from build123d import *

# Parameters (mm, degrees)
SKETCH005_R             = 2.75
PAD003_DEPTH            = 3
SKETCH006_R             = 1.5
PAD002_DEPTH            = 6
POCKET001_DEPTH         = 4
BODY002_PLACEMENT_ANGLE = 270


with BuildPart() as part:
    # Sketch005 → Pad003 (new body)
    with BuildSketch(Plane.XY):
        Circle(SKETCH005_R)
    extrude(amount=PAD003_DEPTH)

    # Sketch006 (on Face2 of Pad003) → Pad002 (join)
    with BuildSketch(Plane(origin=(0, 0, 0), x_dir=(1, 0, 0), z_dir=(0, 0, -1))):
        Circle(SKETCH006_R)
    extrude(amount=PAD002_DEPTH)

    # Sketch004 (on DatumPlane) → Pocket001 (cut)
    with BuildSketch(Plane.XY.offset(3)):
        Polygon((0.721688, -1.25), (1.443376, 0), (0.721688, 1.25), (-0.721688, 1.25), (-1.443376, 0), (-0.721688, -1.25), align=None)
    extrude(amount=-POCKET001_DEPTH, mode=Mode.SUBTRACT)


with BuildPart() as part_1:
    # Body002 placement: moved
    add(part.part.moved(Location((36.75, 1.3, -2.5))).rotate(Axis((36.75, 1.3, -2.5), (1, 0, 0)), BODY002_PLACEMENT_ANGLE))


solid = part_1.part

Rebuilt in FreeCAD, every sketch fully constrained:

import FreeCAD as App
import Part
import Sketcher
from FreeCAD import Vector
Q = App.Units.Quantity

doc = App.newDocument("Part")
params = doc.addObject("Spreadsheet::Sheet", "Params")
for row, (alias, value) in enumerate([
    ("sketch1_diameter", "5.5 mm"),
    ("pad1_length", "3 mm"),
    ("sketch2_diameter", "3 mm"),
    ("pad2_length", "6 mm"),
    ("pocket1_length", "4 mm"),
], start=1):
    params.set(f"A{row}", alias)
    params.set(f"B{row}", "=" + value)
    params.setAlias(f"B{row}", alias)

body = doc.addObject("PartDesign::Body", "Body")

# Sketch on XY plane
sketch1 = body.newObject("Sketcher::SketchObject", "Sketch")
sketch1.AttachmentSupport = (doc.getObject("XY_Plane"), [""])
sketch1.MapMode = "FlatFace"
sketch1.addGeometry(Part.Circle(Vector(0, 0, 0), Vector(0, 0, 1), 2.8), False)
sketch1.addConstraint([
    Sketcher.Constraint("Coincident", 0, 3, -1, 1),
    Sketcher.Constraint("Diameter", 0, Q("5.5 mm")),
])
sketch1.setExpression("Constraints[1]", "Params.sketch1_diameter")
pad1 = body.newObject("PartDesign::Pad", "Pad")
pad1.Profile = sketch1
pad1.setExpression("Length", "Params.pad1_length")

# Sketch on XY plane
sketch2 = body.newObject("Sketcher::SketchObject", "Sketch001")
sketch2.AttachmentSupport = (doc.getObject("XY_Plane"), [""])
sketch2.MapMode = "FlatFace"
sketch2.addGeometry(Part.Circle(Vector(0, 0, 0), Vector(0, 0, 1), 1.5), False)
sketch2.addConstraint([
    Sketcher.Constraint("Coincident", 0, 3, -1, 1),
    Sketcher.Constraint("Diameter", 0, Q("3 mm")),
])
sketch2.setExpression("Constraints[1]", "Params.sketch2_diameter")
pad2 = body.newObject("PartDesign::Pad", "Pad001")
pad2.Profile = sketch2
pad2.setExpression("Length", "Params.pad2_length")
pad2.Reversed = True

# Sketch on XY plane
sketch3 = body.newObject("Sketcher::SketchObject", "Sketch002")
sketch3.AttachmentSupport = (doc.getObject("XY_Plane"), [""])
sketch3.MapMode = "FlatFace"
sketch3.AttachmentOffset = App.Placement(Vector(0, 0, 3), App.Rotation())
sketch3.addGeometry([
    Part.LineSegment(Vector(0.7, -1.2, 0), Vector(1.4, 0, 0)),  # 0
    Part.LineSegment(Vector(1.4, 0, 0), Vector(0.7, 1.2, 0)),  # 1
    Part.LineSegment(Vector(0.7, 1.2, 0), Vector(-0.7, 1.2, 0)),  # 2
    Part.LineSegment(Vector(-0.7, 1.2, 0), Vector(-1.4, 0, 0)),  # 3
    Part.LineSegment(Vector(-1.4, 0, 0), Vector(-0.7, -1.2, 0)),  # 4
    Part.LineSegment(Vector(-0.7, -1.2, 0), Vector(0.7, -1.2, 0)),  # 5
], False)
sketch3.addConstraint([
    Sketcher.Constraint("Coincident", 0, 2, 1, 1),
    Sketcher.Constraint("Coincident", 1, 2, 2, 1),
    Sketcher.Constraint("Coincident", 2, 2, 3, 1),
    Sketcher.Constraint("Coincident", 3, 2, 4, 1),
    Sketcher.Constraint("Coincident", 4, 2, 5, 1),
    Sketcher.Constraint("Coincident", 5, 2, 0, 1),
    Sketcher.Constraint("Horizontal", 2),
    Sketcher.Constraint("Horizontal", 5),
    Sketcher.Constraint("Symmetric", 0, 2, 3, 2, -1, 1),
    Sketcher.Constraint("Symmetric", 1, 2, 4, 2, -1, 1),
    Sketcher.Constraint("PointOnObject", 0, 2, -1),
    Sketcher.Constraint("Parallel", 0, 3),
    Sketcher.Constraint("Vertical", 2, 2, 4, 2),
    Sketcher.Constraint("Angle", 0, Q("59.999994 deg")),
    Sketcher.Constraint("DistanceY", 4, 2, 2, 2, Q("2.5 mm")),
    Sketcher.Constraint("DistanceX", 2, 2, 2, 1, Q("1.443376 mm")),
])
pocket1 = body.newObject("PartDesign::Pocket", "Pocket")
pocket1.Profile = sketch3
pocket1.setExpression("Length", "Params.pocket1_length")
body2 = doc.addObject("PartDesign::Body", "Body001")
doc.recompute()

body.Placement = App.Placement(Vector(36.75, 1.3, -2.5), App.Rotation(Vector(1, 0, 0), 270))
boolean = body2.newObject("PartDesign::Boolean", "Boolean")
boolean.Type = "Fuse"
boolean.addObjects([body])

doc.recompute()
